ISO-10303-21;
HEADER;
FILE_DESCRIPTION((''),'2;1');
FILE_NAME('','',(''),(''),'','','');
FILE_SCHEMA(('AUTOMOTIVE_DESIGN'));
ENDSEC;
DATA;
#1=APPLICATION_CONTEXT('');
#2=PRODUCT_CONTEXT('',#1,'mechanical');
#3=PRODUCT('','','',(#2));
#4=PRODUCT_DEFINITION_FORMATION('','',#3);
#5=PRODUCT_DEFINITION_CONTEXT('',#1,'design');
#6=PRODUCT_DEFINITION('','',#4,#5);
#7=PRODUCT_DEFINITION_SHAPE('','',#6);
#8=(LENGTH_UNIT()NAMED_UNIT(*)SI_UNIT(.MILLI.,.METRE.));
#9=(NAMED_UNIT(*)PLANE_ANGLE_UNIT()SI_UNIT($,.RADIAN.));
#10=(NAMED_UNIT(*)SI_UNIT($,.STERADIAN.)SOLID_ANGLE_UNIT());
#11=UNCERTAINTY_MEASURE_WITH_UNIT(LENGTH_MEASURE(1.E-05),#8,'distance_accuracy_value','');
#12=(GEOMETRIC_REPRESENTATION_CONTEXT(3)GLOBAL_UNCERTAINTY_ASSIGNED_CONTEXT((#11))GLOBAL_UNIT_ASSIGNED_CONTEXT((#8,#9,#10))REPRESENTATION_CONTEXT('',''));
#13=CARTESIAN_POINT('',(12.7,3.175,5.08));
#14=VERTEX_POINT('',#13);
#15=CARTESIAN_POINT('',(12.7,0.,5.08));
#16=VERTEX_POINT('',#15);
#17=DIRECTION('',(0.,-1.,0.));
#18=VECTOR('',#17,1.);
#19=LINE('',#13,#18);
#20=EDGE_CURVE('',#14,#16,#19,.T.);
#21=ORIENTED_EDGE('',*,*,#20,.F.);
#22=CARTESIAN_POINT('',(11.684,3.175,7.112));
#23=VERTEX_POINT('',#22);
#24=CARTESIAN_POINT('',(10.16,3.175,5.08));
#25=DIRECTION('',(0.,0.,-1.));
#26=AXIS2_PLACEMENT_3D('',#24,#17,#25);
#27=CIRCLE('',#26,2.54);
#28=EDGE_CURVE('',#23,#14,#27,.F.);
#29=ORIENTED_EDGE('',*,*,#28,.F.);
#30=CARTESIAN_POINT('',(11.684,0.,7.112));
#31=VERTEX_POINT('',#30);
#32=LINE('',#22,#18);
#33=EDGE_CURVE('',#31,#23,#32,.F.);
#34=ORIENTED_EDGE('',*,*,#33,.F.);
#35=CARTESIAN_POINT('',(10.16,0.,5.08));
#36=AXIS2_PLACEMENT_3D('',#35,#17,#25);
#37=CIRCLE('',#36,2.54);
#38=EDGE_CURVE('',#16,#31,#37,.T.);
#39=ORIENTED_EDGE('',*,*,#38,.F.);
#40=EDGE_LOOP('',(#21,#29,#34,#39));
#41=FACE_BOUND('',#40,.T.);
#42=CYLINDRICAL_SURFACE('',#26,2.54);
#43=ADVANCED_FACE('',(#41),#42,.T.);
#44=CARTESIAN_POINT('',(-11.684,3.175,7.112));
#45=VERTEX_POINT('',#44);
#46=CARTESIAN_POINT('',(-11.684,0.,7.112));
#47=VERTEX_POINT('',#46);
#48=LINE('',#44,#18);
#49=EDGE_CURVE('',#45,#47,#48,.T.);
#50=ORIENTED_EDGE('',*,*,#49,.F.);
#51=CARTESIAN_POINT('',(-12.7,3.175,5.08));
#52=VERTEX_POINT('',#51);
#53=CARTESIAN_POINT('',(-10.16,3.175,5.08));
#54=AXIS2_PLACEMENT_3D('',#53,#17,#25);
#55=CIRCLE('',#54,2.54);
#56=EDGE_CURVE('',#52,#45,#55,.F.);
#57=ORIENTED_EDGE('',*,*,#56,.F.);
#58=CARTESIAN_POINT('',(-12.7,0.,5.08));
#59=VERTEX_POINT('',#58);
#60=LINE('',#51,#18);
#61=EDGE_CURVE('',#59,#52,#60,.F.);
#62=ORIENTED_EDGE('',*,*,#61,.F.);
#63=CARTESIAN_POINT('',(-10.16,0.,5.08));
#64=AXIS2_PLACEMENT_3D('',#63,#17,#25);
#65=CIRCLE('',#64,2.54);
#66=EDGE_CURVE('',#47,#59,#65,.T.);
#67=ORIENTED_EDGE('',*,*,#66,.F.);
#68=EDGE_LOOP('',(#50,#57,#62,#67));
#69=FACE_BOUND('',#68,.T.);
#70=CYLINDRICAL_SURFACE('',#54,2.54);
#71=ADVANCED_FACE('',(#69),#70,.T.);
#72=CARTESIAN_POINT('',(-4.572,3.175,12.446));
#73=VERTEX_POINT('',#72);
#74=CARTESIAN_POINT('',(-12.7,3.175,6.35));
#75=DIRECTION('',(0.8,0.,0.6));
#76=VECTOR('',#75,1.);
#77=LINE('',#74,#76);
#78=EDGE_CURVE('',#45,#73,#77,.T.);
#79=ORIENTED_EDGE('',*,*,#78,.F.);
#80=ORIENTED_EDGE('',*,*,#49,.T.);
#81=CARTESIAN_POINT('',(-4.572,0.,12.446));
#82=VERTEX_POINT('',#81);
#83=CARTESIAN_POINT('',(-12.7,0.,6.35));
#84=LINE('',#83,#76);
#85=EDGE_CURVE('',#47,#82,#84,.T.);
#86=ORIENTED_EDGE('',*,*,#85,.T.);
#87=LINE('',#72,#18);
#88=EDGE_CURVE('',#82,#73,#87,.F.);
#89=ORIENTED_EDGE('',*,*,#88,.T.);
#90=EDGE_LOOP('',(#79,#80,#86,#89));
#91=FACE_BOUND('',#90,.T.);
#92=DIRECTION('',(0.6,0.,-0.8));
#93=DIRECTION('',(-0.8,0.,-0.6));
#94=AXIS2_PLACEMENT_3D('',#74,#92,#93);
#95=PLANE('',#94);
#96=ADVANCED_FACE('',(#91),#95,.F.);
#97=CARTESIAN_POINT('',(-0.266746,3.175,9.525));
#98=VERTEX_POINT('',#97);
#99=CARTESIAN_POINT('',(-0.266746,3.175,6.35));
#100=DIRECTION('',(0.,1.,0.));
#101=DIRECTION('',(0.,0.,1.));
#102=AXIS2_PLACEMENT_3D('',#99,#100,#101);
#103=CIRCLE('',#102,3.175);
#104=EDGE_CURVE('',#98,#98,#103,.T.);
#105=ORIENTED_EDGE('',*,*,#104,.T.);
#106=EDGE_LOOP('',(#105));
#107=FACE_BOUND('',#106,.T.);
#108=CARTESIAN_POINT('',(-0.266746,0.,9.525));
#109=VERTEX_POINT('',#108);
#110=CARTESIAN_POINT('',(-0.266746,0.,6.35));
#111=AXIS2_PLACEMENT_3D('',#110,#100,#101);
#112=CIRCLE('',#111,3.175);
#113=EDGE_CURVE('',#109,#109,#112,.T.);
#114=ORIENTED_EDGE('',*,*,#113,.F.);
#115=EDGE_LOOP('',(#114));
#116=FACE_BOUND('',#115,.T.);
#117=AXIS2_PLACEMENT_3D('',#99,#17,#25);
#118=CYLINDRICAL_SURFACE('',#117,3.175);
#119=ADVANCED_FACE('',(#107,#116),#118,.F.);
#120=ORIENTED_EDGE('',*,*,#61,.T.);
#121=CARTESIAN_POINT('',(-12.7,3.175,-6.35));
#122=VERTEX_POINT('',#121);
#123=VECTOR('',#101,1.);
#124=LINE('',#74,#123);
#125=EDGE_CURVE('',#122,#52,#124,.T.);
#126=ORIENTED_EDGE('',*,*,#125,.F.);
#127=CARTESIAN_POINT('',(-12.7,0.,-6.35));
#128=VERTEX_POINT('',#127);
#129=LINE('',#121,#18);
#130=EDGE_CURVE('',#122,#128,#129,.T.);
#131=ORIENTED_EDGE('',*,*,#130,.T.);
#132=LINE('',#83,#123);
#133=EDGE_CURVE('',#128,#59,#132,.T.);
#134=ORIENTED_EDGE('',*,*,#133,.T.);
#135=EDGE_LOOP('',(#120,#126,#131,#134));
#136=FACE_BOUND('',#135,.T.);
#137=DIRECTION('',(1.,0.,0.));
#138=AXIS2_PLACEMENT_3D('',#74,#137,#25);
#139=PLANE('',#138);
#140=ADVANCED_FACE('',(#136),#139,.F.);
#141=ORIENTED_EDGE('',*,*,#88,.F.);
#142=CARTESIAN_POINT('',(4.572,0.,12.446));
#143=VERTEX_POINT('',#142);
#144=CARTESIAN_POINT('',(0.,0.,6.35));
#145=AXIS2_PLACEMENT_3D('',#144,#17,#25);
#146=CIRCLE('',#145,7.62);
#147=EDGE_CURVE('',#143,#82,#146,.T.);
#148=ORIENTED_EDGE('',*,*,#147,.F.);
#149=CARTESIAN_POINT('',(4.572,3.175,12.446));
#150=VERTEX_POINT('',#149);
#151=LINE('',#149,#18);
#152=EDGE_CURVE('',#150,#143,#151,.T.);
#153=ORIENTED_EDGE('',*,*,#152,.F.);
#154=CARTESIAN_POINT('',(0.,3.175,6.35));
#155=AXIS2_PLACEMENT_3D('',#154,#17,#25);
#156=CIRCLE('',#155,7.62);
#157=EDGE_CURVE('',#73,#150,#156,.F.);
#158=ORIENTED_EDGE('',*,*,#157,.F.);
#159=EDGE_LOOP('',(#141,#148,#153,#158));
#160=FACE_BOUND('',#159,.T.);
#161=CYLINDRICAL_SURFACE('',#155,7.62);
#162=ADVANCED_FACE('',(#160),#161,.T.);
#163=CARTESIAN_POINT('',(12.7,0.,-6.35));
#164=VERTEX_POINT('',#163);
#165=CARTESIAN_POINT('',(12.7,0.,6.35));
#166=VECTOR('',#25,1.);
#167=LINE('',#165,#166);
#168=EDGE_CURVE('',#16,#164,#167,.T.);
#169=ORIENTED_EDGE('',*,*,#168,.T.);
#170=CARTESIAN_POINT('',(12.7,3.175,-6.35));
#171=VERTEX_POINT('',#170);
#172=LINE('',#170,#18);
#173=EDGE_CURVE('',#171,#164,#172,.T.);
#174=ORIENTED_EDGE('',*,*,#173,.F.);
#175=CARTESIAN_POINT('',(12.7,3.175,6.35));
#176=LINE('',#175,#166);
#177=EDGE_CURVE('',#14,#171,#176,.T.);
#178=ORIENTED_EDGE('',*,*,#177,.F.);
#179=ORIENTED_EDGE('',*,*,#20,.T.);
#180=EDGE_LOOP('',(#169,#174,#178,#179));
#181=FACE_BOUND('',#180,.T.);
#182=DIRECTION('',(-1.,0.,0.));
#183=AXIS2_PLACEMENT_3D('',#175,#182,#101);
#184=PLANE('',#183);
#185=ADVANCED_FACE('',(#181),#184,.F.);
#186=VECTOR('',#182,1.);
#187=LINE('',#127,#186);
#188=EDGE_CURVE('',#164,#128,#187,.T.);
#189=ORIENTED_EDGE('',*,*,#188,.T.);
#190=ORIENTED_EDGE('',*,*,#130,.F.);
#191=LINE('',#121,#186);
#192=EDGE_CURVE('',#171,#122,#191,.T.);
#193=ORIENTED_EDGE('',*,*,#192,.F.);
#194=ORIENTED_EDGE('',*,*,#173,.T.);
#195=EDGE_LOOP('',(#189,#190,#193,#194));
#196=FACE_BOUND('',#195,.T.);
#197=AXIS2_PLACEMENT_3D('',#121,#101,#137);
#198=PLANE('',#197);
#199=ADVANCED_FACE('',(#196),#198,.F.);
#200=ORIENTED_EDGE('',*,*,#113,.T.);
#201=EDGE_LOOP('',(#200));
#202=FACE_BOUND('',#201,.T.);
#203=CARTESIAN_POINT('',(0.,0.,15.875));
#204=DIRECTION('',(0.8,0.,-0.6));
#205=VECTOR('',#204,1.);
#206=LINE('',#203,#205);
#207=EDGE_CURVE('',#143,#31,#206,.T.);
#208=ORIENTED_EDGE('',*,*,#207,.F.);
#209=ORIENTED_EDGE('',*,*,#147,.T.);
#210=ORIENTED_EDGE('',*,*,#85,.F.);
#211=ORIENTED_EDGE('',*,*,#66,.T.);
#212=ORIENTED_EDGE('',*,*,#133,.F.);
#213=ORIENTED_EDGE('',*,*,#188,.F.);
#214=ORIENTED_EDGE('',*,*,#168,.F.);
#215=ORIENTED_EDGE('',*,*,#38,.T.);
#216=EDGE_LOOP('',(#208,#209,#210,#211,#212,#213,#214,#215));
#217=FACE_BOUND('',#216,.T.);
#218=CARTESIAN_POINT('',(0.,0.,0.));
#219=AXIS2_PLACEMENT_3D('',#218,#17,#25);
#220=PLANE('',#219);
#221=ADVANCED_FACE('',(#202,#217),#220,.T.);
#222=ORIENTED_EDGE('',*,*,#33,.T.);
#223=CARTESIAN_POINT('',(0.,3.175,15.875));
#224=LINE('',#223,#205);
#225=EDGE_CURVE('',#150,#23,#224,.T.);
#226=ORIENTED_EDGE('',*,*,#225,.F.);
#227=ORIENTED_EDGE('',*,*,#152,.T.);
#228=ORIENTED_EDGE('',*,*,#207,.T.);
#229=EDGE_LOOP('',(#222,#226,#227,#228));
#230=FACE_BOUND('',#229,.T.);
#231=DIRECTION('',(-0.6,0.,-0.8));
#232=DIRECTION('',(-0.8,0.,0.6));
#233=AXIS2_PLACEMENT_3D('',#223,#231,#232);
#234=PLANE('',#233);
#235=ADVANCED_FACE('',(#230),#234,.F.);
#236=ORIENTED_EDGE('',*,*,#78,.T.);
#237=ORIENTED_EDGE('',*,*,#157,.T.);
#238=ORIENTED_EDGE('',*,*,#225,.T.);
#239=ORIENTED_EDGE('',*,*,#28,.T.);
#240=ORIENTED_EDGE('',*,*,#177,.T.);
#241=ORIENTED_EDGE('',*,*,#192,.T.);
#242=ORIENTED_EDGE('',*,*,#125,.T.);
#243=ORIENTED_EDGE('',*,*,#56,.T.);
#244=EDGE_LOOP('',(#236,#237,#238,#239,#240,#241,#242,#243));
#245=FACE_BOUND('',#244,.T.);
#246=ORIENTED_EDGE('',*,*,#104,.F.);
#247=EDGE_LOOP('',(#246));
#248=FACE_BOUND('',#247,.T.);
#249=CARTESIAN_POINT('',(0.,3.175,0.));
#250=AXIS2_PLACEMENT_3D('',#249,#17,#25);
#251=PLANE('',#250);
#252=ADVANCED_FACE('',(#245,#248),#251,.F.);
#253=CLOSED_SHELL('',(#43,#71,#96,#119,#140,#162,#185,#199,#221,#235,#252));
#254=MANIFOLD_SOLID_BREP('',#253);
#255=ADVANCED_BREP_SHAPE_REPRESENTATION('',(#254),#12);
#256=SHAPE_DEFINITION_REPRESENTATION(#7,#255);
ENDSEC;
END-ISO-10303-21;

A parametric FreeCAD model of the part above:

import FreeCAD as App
import Part
import Sketcher

V = App.Vector
Q = App.Units.Quantity


def edges_at(feature, points):
    """Names of the edges that pass closest to the given points."""
    edges = feature.Shape.Edges
    near = lambda p: min(range(len(edges)), key=lambda i: edges[i].distToShape(Part.Vertex(*p))[0])
    return sorted({f"Edge{near(p) + 1}" for p in points})


def add_polygon(sketch, points):
    """Adds a closed chain of lines whose ends are joined by coincident constraints."""
    first, n = sketch.GeometryCount, len(points)
    for a, b in zip(points, points[1:] + points[:1]):
        sketch.addGeometry(Part.LineSegment(App.Vector(*a, 0), App.Vector(*b, 0)), False)
    for i in range(n):
        sketch.addConstraint(Sketcher.Constraint("Coincident", first + i, 2, first + (i + 1) % n, 1))

doc = App.newDocument("Part")
body = doc.addObject("PartDesign::Body", "Body")

# Sketch on XZ plane
sketch1 = doc.addObject("Sketcher::SketchObject", "Sketch")
body.addObject(sketch1)
sketch1.AttachmentSupport = (doc.XZ_Plane, [""])
sketch1.MapMode = "FlatFace"
add_polygon(sketch1, [(-12.7, -6.3), (-12.7, 6.3), (0, 15.9), (12.7, 6.3), (12.7, -6.3)])  # lines 0-4
sketch1.addGeometry(Part.Circle(V(-0.3, 6.3, 0), V(0, 0, 1), 3.2), False)  # 5
sketch1.addConstraint(Sketcher.Constraint("Vertical", 0))
sketch1.addConstraint(Sketcher.Constraint("Vertical", 3))
sketch1.addConstraint(Sketcher.Constraint("Horizontal", 4))
sketch1.addConstraint(Sketcher.Constraint("Symmetric", 0, 2, 3, 2, -1, 1))
sketch1.addConstraint(Sketcher.Constraint("PointOnObject", 1, 2, -2))
sketch1.addConstraint(Sketcher.Constraint("Horizontal", 5, 3, 0, 2))
sketch1.addConstraint(Sketcher.Constraint("Horizontal", 0, 2, 2, 2))
sketch1.addConstraint(Sketcher.Constraint("Diameter", 5, Q("0.25 in")))
sketch1.addConstraint(Sketcher.Constraint("DistanceX", 4, 2, 4, 1, Q("1 in")))
sketch1.addConstraint(Sketcher.Constraint("DistanceY", 0, 1, 0, 2, Q("0.5 in")))
sketch1.addConstraint(Sketcher.Constraint("Distance", 1, Q("0.625 in")))
sketch1.addConstraint(Sketcher.Constraint("DistanceX", 5, 3, -1, 1, Q("0.266746 mm")))
pad1 = doc.addObject("PartDesign::Pad", "Pad")
body.addObject(pad1)
pad1.Profile = sketch1
pad1.Length = Q("0.125 in")
pad1.Reversed = True
doc.recompute()

fillet = doc.addObject("PartDesign::Fillet", "Fillet")
body.addObject(fillet)
fillet.Base = (pad1, edges_at(pad1, [(0, 1.587, 15.875)]))
fillet.Radius = Q("0.3 in")
doc.recompute()

fillet2 = doc.addObject("PartDesign::Fillet", "Fillet001")
body.addObject(fillet2)
fillet2.Base = (fillet, edges_at(fillet, [(12.7, 1.587, 6.35), (-12.7, 1.587, 6.35)]))
fillet2.Radius = Q("0.1 in")

doc.recompute()
